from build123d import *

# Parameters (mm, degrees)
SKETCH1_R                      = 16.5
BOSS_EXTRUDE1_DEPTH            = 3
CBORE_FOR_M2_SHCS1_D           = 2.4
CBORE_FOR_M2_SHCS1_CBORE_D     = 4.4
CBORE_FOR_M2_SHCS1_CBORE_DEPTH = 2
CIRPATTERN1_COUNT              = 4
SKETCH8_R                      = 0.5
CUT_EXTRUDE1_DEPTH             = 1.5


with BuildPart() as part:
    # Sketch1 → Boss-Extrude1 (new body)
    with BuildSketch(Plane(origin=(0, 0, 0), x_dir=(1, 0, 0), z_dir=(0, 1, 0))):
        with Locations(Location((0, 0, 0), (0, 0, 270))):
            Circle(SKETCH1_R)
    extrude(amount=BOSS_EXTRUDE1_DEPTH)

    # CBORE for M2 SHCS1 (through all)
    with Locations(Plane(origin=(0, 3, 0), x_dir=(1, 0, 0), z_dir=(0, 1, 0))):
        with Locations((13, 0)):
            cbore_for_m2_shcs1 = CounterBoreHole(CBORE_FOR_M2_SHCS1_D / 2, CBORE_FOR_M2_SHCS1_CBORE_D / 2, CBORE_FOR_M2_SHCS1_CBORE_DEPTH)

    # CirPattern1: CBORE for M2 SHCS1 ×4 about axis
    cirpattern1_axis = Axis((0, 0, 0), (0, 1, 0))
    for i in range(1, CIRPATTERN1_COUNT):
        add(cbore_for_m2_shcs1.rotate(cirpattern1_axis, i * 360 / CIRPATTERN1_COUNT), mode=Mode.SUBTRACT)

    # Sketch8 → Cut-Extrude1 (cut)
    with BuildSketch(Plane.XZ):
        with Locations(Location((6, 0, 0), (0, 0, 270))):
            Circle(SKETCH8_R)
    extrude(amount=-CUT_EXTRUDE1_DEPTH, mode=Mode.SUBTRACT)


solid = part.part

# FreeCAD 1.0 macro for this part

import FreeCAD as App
import Part
import Sketcher

V = App.Vector
Q = App.Units.Quantity

doc = App.newDocument("Part")
params = doc.addObject("Spreadsheet::Sheet", "Params")
for row, (alias, value) in enumerate([
    ("sketch1_diameter", "33 mm"),
    ("pad1_length", "3 mm"),
    ("sketch2_diameter", "2.4 mm"),
    ("hole_diameter", "2.4 mm"),
    ("hole_cbore_diameter", "4.4 mm"),
    ("hole_cbore_depth", "2 mm"),
    ("sketch3_diameter", "1 mm"),
    ("pocket1_length", "1.5 mm"),
], start=1):
    params.set(f"A{row}", alias)
    params.set(f"B{row}", "=" + value)
    params.setAlias(f"B{row}", alias)

body = doc.addObject("PartDesign::Body", "Body")

# Sketch on XZ plane
sketch1 = body.newObject("Sketcher::SketchObject", "Sketch")
sketch1.AttachmentSupport = (doc.getObject("XZ_Plane"), [""])
sketch1.MapMode = "FlatFace"
sketch1.addGeometry(Part.Circle(V(0, 0, 0), V(0, 0, 1), 16.5), False)
sketch1.addConstraint(Sketcher.Constraint("Coincident", 0, 3, -1, 1))
sketch1.addConstraint(Sketcher.Constraint("Diameter", 0, Q("33 mm")))
sketch1.setExpression("Constraints[1]", "Params.sketch1_diameter")
pad1 = body.newObject("PartDesign::Pad", "Pad")
pad1.Profile = sketch1
pad1.setExpression("Length", "Params.pad1_length")
pad1.Reversed = True

# Sketch on XZ plane
sketch2 = body.newObject("Sketcher::SketchObject", "Sketch001")
sketch2.AttachmentSupport = (doc.getObject("XZ_Plane"), [""])
sketch2.MapMode = "FlatFace"
sketch2.AttachmentOffset = App.Placement(V(0, 0, -3), App.Rotation())
sketch2.addGeometry(Part.Circle(V(13, 0, 0), V(0, 0, 1), 1.2), False)
sketch2.addConstraint(Sketcher.Constraint("PointOnObject", 0, 3, -1))
sketch2.addConstraint(Sketcher.Constraint("Diameter", 0, Q("2.4 mm")))
sketch2.addConstraint(Sketcher.Constraint("DistanceX", -1, 1, 0, 3, Q("13 mm")))
sketch2.setExpression("Constraints[1]", "Params.sketch2_diameter")
doc.recompute()
hole = body.newObject("PartDesign::Hole", "Hole")
hole.Profile = sketch2
hole.ThreadType = "None"
hole.setExpression("Diameter", "Params.hole_diameter")
hole.DepthType = "ThroughAll"
hole.HoleCutType = "Counterbore"
hole.setExpression("HoleCutDiameter", "Params.hole_cbore_diameter")
hole.setExpression("HoleCutDepth", "Params.hole_cbore_depth")
hole.Reversed = True
doc.recompute()

polarpattern = body.newObject("PartDesign::PolarPattern", "PolarPattern")
polarpattern.Originals = [hole]
polarpattern.Axis = (doc.getObject("Y_Axis"), [""])
polarpattern.Angle = 360
polarpattern.Occurrences = 4
body.Tip = polarpattern

# Sketch on XZ plane
sketch3 = body.newObject("Sketcher::SketchObject", "Sketch002")
sketch3.AttachmentSupport = (doc.getObject("XZ_Plane"), [""])
sketch3.MapMode = "FlatFace"
sketch3.addGeometry(Part.Circle(V(6, 0, 0), V(0, 0, 1), 0.5), False)
sketch3.addConstraint(Sketcher.Constraint("PointOnObject", 0, 3, -1))
sketch3.addConstraint(Sketcher.Constraint("Diameter", 0, Q("1 mm")))
sketch3.addConstraint(Sketcher.Constraint("DistanceX", -1, 1, 0, 3, Q("6 mm")))
sketch3.setExpression("Constraints[1]", "Params.sketch3_diameter")
pocket1 = body.newObject("PartDesign::Pocket", "Pocket")
pocket1.Profile = sketch3
pocket1.setExpression("Length", "Params.pocket1_length")

doc.recompute()
